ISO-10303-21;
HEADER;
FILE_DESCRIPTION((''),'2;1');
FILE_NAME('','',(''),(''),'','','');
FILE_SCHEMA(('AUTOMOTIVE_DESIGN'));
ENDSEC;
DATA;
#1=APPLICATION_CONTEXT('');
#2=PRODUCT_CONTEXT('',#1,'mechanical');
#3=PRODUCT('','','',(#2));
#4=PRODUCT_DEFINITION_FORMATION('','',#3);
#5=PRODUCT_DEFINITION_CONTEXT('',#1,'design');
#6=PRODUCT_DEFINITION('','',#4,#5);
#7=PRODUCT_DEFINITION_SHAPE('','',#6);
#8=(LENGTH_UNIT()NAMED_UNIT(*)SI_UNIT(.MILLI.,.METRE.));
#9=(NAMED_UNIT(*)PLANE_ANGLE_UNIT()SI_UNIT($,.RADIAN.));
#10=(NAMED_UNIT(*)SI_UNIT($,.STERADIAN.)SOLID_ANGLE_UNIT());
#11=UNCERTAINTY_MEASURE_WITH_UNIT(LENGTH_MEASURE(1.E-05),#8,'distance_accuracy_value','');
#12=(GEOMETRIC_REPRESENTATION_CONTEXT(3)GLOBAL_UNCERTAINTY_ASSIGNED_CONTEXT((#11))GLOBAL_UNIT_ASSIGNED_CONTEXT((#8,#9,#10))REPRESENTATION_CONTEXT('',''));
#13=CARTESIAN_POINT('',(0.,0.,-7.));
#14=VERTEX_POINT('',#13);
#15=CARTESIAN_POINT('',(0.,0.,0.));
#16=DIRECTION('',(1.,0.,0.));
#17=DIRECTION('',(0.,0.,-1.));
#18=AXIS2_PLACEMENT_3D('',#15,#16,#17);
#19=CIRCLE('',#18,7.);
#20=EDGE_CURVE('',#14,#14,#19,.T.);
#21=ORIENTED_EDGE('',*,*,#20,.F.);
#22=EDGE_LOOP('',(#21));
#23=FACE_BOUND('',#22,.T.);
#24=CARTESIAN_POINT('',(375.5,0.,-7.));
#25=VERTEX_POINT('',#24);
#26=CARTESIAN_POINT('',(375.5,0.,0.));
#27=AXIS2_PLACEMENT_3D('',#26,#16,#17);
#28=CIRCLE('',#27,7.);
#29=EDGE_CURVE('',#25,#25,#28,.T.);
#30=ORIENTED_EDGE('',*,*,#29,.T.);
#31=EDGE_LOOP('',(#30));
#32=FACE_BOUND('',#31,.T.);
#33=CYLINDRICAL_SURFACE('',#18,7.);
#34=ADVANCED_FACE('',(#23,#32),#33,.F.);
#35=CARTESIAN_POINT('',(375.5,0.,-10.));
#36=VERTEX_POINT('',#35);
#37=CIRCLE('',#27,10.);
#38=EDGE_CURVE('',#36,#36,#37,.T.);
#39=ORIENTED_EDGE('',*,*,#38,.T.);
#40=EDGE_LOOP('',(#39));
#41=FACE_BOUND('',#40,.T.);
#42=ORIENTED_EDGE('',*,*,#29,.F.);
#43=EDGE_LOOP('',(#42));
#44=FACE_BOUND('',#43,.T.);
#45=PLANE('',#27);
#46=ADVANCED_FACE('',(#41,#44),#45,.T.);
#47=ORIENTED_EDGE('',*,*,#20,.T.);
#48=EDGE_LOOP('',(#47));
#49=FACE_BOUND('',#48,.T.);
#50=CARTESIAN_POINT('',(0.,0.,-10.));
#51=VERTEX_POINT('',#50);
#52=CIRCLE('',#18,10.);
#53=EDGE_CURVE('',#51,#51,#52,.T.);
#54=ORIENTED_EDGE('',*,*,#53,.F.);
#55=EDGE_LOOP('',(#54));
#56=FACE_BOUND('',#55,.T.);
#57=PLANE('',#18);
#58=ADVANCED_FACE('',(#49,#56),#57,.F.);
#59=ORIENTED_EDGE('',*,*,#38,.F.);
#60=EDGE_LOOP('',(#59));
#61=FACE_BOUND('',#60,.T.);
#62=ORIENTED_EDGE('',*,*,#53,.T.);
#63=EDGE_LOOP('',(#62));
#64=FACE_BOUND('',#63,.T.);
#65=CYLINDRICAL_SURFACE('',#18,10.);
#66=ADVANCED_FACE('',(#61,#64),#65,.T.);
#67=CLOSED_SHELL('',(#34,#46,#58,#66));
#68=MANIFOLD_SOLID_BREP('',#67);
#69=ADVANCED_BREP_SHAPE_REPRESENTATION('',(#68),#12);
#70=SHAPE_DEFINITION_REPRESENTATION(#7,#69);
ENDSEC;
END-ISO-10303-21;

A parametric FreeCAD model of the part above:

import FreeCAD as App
import Part
import Sketcher

V = App.Vector
Q = App.Units.Quantity

doc = App.newDocument("Part")
body = doc.addObject("PartDesign::Body", "Body")

# Sketch on YZ plane
sketch1 = doc.addObject("Sketcher::SketchObject", "Sketch")
body.addObject(sketch1)
sketch1.AttachmentSupport = (doc.YZ_Plane, [""])
sketch1.MapMode = "FlatFace"
sketch1.addGeometry(Part.Circle(V(0, 0, 0), V(0, 0, 1), 10), False)
sketch1.addGeometry(Part.Circle(V(0, 0, 0), V(0, 0, 1), 7), False)
sketch1.addConstraint(Sketcher.Constraint("Coincident", 0, 3, -1, 1))
sketch1.addConstraint(Sketcher.Constraint("Coincident", 1, 3, -1, 1))
sketch1.addConstraint(Sketcher.Constraint("Diameter", 0, Q("20 mm")))
sketch1.addConstraint(Sketcher.Constraint("Diameter", 1, Q("14 mm")))

# Sketch on XY plane
sketch2 = doc.addObject("Sketcher::SketchObject", "Sketch001")
body.addObject(sketch2)
sketch2.AttachmentSupport = (doc.XY_Plane, [""])
sketch2.MapMode = "FlatFace"
sketch2.addGeometry(Part.LineSegment(V(0, 0, 0), V(375.5, 0, 0)), False)
sketch2.addConstraint(Sketcher.Constraint("Horizontal", 0))
sketch2.addConstraint(Sketcher.Constraint("Coincident", 0, 1, -1, 1))
sketch2.addConstraint(Sketcher.Constraint("DistanceX", 0, 1, 0, 2, Q("375.5 mm")))
doc.recompute()

additivepipe = doc.addObject("PartDesign::AdditivePipe", "AdditivePipe")
body.addObject(additivepipe)
additivepipe.Profile = sketch1
additivepipe.Spine = (sketch2, ["Edge1"])

doc.recompute()
